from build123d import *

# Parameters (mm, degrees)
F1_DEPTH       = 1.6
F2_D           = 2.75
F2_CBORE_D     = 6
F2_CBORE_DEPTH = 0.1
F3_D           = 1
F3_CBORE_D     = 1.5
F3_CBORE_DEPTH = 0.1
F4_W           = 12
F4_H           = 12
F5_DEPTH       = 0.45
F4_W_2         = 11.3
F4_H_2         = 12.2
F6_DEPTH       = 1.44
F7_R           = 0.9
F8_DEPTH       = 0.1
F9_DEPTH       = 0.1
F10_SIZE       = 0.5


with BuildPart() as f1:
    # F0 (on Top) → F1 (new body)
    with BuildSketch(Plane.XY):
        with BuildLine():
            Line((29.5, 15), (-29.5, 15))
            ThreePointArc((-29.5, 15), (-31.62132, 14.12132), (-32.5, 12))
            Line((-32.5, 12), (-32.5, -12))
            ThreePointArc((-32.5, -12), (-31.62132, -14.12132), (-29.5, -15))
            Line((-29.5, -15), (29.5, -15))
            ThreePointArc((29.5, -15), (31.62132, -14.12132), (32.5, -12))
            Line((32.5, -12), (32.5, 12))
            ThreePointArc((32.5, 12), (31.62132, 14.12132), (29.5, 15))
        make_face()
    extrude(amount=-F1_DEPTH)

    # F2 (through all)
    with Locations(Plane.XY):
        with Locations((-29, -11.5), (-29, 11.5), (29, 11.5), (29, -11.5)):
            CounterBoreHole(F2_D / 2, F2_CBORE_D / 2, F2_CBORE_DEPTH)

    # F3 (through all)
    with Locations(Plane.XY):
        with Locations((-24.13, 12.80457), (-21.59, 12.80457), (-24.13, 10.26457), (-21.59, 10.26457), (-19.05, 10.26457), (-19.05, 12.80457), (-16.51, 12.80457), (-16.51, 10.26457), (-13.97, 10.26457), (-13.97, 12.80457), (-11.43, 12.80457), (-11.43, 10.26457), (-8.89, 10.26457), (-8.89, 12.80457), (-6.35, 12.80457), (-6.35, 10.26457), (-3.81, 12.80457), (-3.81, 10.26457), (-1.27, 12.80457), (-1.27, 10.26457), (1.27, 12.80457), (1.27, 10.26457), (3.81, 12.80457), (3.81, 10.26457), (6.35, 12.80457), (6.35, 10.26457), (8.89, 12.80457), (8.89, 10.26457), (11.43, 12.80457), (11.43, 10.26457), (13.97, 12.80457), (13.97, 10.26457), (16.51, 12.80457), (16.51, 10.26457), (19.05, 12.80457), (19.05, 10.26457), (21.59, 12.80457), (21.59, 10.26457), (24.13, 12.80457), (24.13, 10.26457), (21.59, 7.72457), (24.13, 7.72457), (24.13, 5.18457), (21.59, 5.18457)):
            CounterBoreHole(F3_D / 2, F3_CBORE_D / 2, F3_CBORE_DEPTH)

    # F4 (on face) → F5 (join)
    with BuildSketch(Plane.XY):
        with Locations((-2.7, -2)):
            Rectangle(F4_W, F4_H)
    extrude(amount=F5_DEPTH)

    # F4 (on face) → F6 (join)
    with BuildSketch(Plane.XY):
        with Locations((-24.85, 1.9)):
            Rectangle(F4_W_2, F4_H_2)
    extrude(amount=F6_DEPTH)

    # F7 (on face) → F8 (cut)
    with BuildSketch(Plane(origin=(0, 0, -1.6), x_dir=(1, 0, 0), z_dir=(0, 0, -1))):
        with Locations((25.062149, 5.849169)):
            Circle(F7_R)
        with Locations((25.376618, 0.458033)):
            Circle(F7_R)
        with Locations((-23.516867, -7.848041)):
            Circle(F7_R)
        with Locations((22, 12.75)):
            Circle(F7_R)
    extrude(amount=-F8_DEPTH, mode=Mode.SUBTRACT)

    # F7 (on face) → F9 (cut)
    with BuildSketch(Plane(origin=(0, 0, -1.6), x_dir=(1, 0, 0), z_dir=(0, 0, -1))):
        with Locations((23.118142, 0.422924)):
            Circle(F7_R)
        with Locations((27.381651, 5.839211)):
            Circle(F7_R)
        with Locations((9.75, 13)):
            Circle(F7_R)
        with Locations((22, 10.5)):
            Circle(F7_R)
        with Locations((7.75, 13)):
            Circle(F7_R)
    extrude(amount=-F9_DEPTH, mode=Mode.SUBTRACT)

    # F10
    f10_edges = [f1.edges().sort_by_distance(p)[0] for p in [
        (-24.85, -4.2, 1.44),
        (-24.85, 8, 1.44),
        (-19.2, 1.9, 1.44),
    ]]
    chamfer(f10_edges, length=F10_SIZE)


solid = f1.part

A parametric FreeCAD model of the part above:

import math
import FreeCAD as App
import Part
import Sketcher


def edges_at(feature, points):
    """Names of the edges that pass closest to the given points."""
    edges = feature.Shape.Edges
    near = lambda p: min(range(len(edges)), key=lambda i: edges[i].distToShape(Part.Vertex(*p))[0])
    return sorted({f"Edge{near(p) + 1}" for p in points})

doc = App.newDocument("Part")
body = doc.addObject("PartDesign::Body", "Body")

# Sketch on XY plane
sketch1 = body.newObject("Sketcher::SketchObject", "Sketch")
sketch1.AttachmentSupport = (doc.getObject("XY_Plane"), [""])
sketch1.MapMode = "FlatFace"
sketch1.addGeometry([
    Part.LineSegment(App.Vector(29.5, 15, 0), App.Vector(-29.5, 15, 0)),  # 0
    Part.ArcOfCircle(Part.Circle(App.Vector(-29.5, 12, 0), App.Vector(0, 0, 1), 3), math.radians(90), math.radians(180)),  # 1
    Part.LineSegment(App.Vector(-32.5, 12, 0), App.Vector(-32.5, -12, 0)),  # 2
    Part.ArcOfCircle(Part.Circle(App.Vector(-29.5, -12, 0), App.Vector(0, 0, 1), 3), math.radians(-180), math.radians(-90)),  # 3
    Part.LineSegment(App.Vector(-29.5, -15, 0), App.Vector(29.5, -15, 0)),  # 4
    Part.ArcOfCircle(Part.Circle(App.Vector(29.5, -12, 0), App.Vector(0, 0, 1), 3), math.radians(-90), math.radians(0)),  # 5
    Part.LineSegment(App.Vector(32.5, -12, 0), App.Vector(32.5, 12, 0)),  # 6
    Part.ArcOfCircle(Part.Circle(App.Vector(29.5, 12, 0), App.Vector(0, 0, 1), 3), math.radians(0), math.radians(90)),  # 7
], False)
sketch1.addConstraint([
    Sketcher.Constraint("Tangent", 0, 2, 1, 1),
    Sketcher.Constraint("Tangent", 1, 2, 2, 1),
    Sketcher.Constraint("Tangent", 2, 2, 3, 1),
    Sketcher.Constraint("Tangent", 3, 2, 4, 1),
    Sketcher.Constraint("Tangent", 4, 2, 5, 1),
    Sketcher.Constraint("Tangent", 5, 2, 6, 1),
    Sketcher.Constraint("Tangent", 6, 2, 7, 1),
    Sketcher.Constraint("Tangent", 7, 2, 0, 1),
    Sketcher.Constraint("Horizontal", 0),
    Sketcher.Constraint("Vertical", 2),
    Sketcher.Constraint("Horizontal", 4),
    Sketcher.Constraint("Vertical", 6),
    Sketcher.Constraint("Equal", 1, 3),
    Sketcher.Constraint("Equal", 3, 5),
    Sketcher.Constraint("Equal", 5, 7),
    Sketcher.Constraint("Symmetric", 1, 3, 5, 3, -1, 1),
    Sketcher.Constraint("Radius", 1, 3.000001),
    Sketcher.Constraint("DistanceX", 0, 2, 0, 1, 59.0),
    Sketcher.Constraint("DistanceY", 2, 2, 2, 1, 24.0),
])
pad1 = body.newObject("PartDesign::Pad", "Pad")
pad1.Profile = sketch1
pad1.Length = 1.6
pad1.Reversed = True

# Sketch on XY plane
sketch2 = body.newObject("Sketcher::SketchObject", "Sketch001")
sketch2.AttachmentSupport = (doc.getObject("XY_Plane"), [""])
sketch2.MapMode = "FlatFace"
sketch2.addGeometry([
    Part.Circle(App.Vector(-29, -11.5, 0), App.Vector(0, 0, 1), 1.4),
    Part.Circle(App.Vector(-29, 11.5, 0), App.Vector(0, 0, 1), 1.4),
    Part.Circle(App.Vector(29, 11.5, 0), App.Vector(0, 0, 1), 1.4),
    Part.Circle(App.Vector(29, -11.5, 0), App.Vector(0, 0, 1), 1.4),
], False)
sketch2.addConstraint([
    Sketcher.Constraint("Equal", 0, 1),
    Sketcher.Constraint("Equal", 1, 2),
    Sketcher.Constraint("Equal", 2, 3),
    Sketcher.Constraint("Symmetric", 0, 3, 2, 3, -1, 1),
    Sketcher.Constraint("Symmetric", 1, 3, 3, 3, -1, 1),
    Sketcher.Constraint("Symmetric", 1, 3, 2, 3, -2),
    Sketcher.Constraint("Diameter", 0, 2.75),
    Sketcher.Constraint("DistanceX", 0, 3, -1, 1, 29.0),
    Sketcher.Constraint("DistanceY", 0, 3, 1, 3, 23.0),
])
doc.recompute()
hole = body.newObject("PartDesign::Hole", "Hole")
hole.Profile = sketch2
hole.ThreadType = "None"
hole.Diameter = 2.75
hole.DepthType = "ThroughAll"
hole.HoleCutType = "Counterbore"
hole.HoleCutDiameter = 6
hole.HoleCutDepth = 0.1

# Sketch on XY plane
sketch3 = body.newObject("Sketcher::SketchObject", "Sketch002")
sketch3.AttachmentSupport = (doc.getObject("XY_Plane"), [""])
sketch3.MapMode = "FlatFace"
sketch3.addGeometry([
    Part.Circle(App.Vector(-24.1, 12.8, 0), App.Vector(0, 0, 1), 0.5),  # 0
    Part.Circle(App.Vector(-21.6, 12.8, 0), App.Vector(0, 0, 1), 0.5),  # 1
    Part.Circle(App.Vector(-24.1, 10.3, 0), App.Vector(0, 0, 1), 0.5),  # 2
    Part.Circle(App.Vector(-21.6, 10.3, 0), App.Vector(0, 0, 1), 0.5),  # 3
    Part.Circle(App.Vector(-19.1, 10.3, 0), App.Vector(0, 0, 1), 0.5),  # 4
    Part.Circle(App.Vector(-19.1, 12.8, 0), App.Vector(0, 0, 1), 0.5),  # 5
    Part.Circle(App.Vector(-16.5, 12.8, 0), App.Vector(0, 0, 1), 0.5),  # 6
    Part.Circle(App.Vector(-16.5, 10.3, 0), App.Vector(0, 0, 1), 0.5),  # 7
    Part.Circle(App.Vector(-14, 10.3, 0), App.Vector(0, 0, 1), 0.5),  # 8
    Part.Circle(App.Vector(-14, 12.8, 0), App.Vector(0, 0, 1), 0.5),  # 9
    Part.Circle(App.Vector(-11.4, 12.8, 0), App.Vector(0, 0, 1), 0.5),  # 10
    Part.Circle(App.Vector(-11.4, 10.3, 0), App.Vector(0, 0, 1), 0.5),  # 11
    Part.Circle(App.Vector(-8.9, 10.3, 0), App.Vector(0, 0, 1), 0.5),  # 12
    Part.Circle(App.Vector(-8.9, 12.8, 0), App.Vector(0, 0, 1), 0.5),  # 13
    Part.Circle(App.Vector(-6.3, 12.8, 0), App.Vector(0, 0, 1), 0.5),  # 14
    Part.Circle(App.Vector(-6.3, 10.3, 0), App.Vector(0, 0, 1), 0.5),  # 15
    Part.Circle(App.Vector(-3.8, 12.8, 0), App.Vector(0, 0, 1), 0.5),  # 16
    Part.Circle(App.Vector(-3.8, 10.3, 0), App.Vector(0, 0, 1), 0.5),  # 17
    Part.Circle(App.Vector(-1.3, 12.8, 0), App.Vector(0, 0, 1), 0.5),  # 18
    Part.Circle(App.Vector(-1.3, 10.3, 0), App.Vector(0, 0, 1), 0.5),  # 19
    Part.Circle(App.Vector(1.3, 12.8, 0), App.Vector(0, 0, 1), 0.5),  # 20
    Part.Circle(App.Vector(1.3, 10.3, 0), App.Vector(0, 0, 1), 0.5),  # 21
    Part.Circle(App.Vector(3.8, 12.8, 0), App.Vector(0, 0, 1), 0.5),  # 22
    Part.Circle(App.Vector(3.8, 10.3, 0), App.Vector(0, 0, 1), 0.5),  # 23
    Part.Circle(App.Vector(6.3, 12.8, 0), App.Vector(0, 0, 1), 0.5),  # 24
    Part.Circle(App.Vector(6.3, 10.3, 0), App.Vector(0, 0, 1), 0.5),  # 25
    Part.Circle(App.Vector(8.9, 12.8, 0), App.Vector(0, 0, 1), 0.5),  # 26
    Part.Circle(App.Vector(8.9, 10.3, 0), App.Vector(0, 0, 1), 0.5),  # 27
    Part.Circle(App.Vector(11.4, 12.8, 0), App.Vector(0, 0, 1), 0.5),  # 28
    Part.Circle(App.Vector(11.4, 10.3, 0), App.Vector(0, 0, 1), 0.5),  # 29
    Part.Circle(App.Vector(14, 12.8, 0), App.Vector(0, 0, 1), 0.5),  # 30
    Part.Circle(App.Vector(14, 10.3, 0), App.Vector(0, 0, 1), 0.5),  # 31
    Part.Circle(App.Vector(16.5, 12.8, 0), App.Vector(0, 0, 1), 0.5),  # 32
    Part.Circle(App.Vector(16.5, 10.3, 0), App.Vector(0, 0, 1), 0.5),  # 33
    Part.Circle(App.Vector(19.1, 12.8, 0), App.Vector(0, 0, 1), 0.5),  # 34
    Part.Circle(App.Vector(19.1, 10.3, 0), App.Vector(0, 0, 1), 0.5),  # 35
    Part.Circle(App.Vector(21.6, 12.8, 0), App.Vector(0, 0, 1), 0.5),  # 36
    Part.Circle(App.Vector(21.6, 10.3, 0), App.Vector(0, 0, 1), 0.5),  # 37
    Part.Circle(App.Vector(24.1, 12.8, 0), App.Vector(0, 0, 1), 0.5),  # 38
    Part.Circle(App.Vector(24.1, 10.3, 0), App.Vector(0, 0, 1), 0.5),  # 39
    Part.Circle(App.Vector(21.6, 7.7, 0), App.Vector(0, 0, 1), 0.5),  # 40
    Part.Circle(App.Vector(24.1, 7.7, 0), App.Vector(0, 0, 1), 0.5),  # 41
    Part.Circle(App.Vector(24.1, 5.2, 0), App.Vector(0, 0, 1), 0.5),  # 42
    Part.Circle(App.Vector(21.6, 5.2, 0), App.Vector(0, 0, 1), 0.5),  # 43
], False)
sketch3.addConstraint([
    Sketcher.Constraint("Equal", 0, 1),
    Sketcher.Constraint("Equal", 1, 2),
    Sketcher.Constraint("Equal", 2, 3),
    Sketcher.Constraint("Equal", 3, 4),
    Sketcher.Constraint("Equal", 4, 5),
    Sketcher.Constraint("Equal", 5, 6),
    Sketcher.Constraint("Equal", 6, 7),
    Sketcher.Constraint("Equal", 7, 8),
    Sketcher.Constraint("Equal", 8, 9),
    Sketcher.Constraint("Equal", 9, 10),
    Sketcher.Constraint("Equal", 10, 11),
    Sketcher.Constraint("Equal", 11, 12),
    Sketcher.Constraint("Equal", 12, 13),
    Sketcher.Constraint("Equal", 13, 14),
    Sketcher.Constraint("Equal", 14, 15),
    Sketcher.Constraint("Equal", 15, 16),
    Sketcher.Constraint("Equal", 16, 17),
    Sketcher.Constraint("Equal", 17, 18),
    Sketcher.Constraint("Equal", 18, 19),
    Sketcher.Constraint("Equal", 19, 20),
    Sketcher.Constraint("Equal", 20, 21),
    Sketcher.Constraint("Equal", 21, 22),
    Sketcher.Constraint("Equal", 22, 23),
    Sketcher.Constraint("Equal", 23, 24),
    Sketcher.Constraint("Equal", 24, 25),
    Sketcher.Constraint("Equal", 25, 26),
    Sketcher.Constraint("Equal", 26, 27),
    Sketcher.Constraint("Equal", 27, 28),
    Sketcher.Constraint("Equal", 28, 29),
    Sketcher.Constraint("Equal", 29, 30),
    Sketcher.Constraint("Equal", 30, 31),
    Sketcher.Constraint("Equal", 31, 32),
    Sketcher.Constraint("Equal", 32, 33),
    Sketcher.Constraint("Equal", 33, 34),
    Sketcher.Constraint("Equal", 34, 35),
    Sketcher.Constraint("Equal", 35, 36),
    Sketcher.Constraint("Equal", 36, 37),
    Sketcher.Constraint("Equal", 37, 38),
    Sketcher.Constraint("Equal", 38, 39),
    Sketcher.Constraint("Equal", 39, 40),
    Sketcher.Constraint("Equal", 40, 41),
    Sketcher.Constraint("Equal", 41, 42),
    Sketcher.Constraint("Equal", 42, 43),
    Sketcher.Constraint("Symmetric", 18, 3, 20, 3, -2),
    Sketcher.Constraint("Symmetric", 19, 3, 21, 3, -2),
    Sketcher.Constraint("Symmetric", 16, 3, 22, 3, -2),
    Sketcher.Constraint("Symmetric", 17, 3, 23, 3, -2),
    Sketcher.Constraint("Symmetric", 14, 3, 24, 3, -2),
    Sketcher.Constraint("Symmetric", 15, 3, 25, 3, -2),
    Sketcher.Constraint("Symmetric", 13, 3, 26, 3, -2),
    Sketcher.Constraint("Symmetric", 12, 3, 27, 3, -2),
    Sketcher.Constraint("Symmetric", 10, 3, 28, 3, -2),
    Sketcher.Constraint("Symmetric", 11, 3, 29, 3, -2),
    Sketcher.Constraint("Symmetric", 9, 3, 30, 3, -2),
    Sketcher.Constraint("Symmetric", 8, 3, 31, 3, -2),
    Sketcher.Constraint("Symmetric", 6, 3, 32, 3, -2),
    Sketcher.Constraint("Symmetric", 7, 3, 33, 3, -2),
    Sketcher.Constraint("Symmetric", 5, 3, 34, 3, -2),
    Sketcher.Constraint("Symmetric", 4, 3, 35, 3, -2),
    Sketcher.Constraint("Symmetric", 1, 3, 36, 3, -2),
    Sketcher.Constraint("Symmetric", 3, 3, 37, 3, -2),
    Sketcher.Constraint("Symmetric", 0, 3, 38, 3, -2),
    Sketcher.Constraint("Symmetric", 2, 3, 39, 3, -2),
    Sketcher.Constraint("Horizontal", 0, 3, 1, 3),
    Sketcher.Constraint("Horizontal", 2, 3, 3, 3),
    Sketcher.Constraint("Horizontal", 3, 3, 4, 3),
    Sketcher.Constraint("Horizontal", 1, 3, 5, 3),
    Sketcher.Constraint("Horizontal", 5, 3, 6, 3),
    Sketcher.Constraint("Horizontal", 4, 3, 7, 3),
    Sketcher.Constraint("Horizontal", 7, 3, 8, 3),
    Sketcher.Constraint("Horizontal", 6, 3, 9, 3),
    Sketcher.Constraint("Horizontal", 9, 3, 10, 3),
    Sketcher.Constraint("Horizontal", 8, 3, 11, 3),
    Sketcher.Constraint("Horizontal", 11, 3, 12, 3),
    Sketcher.Constraint("Horizontal", 10, 3, 13, 3),
    Sketcher.Constraint("Horizontal", 13, 3, 14, 3),
    Sketcher.Constraint("Horizontal", 12, 3, 15, 3),
    Sketcher.Constraint("Horizontal", 14, 3, 16, 3),
    Sketcher.Constraint("Horizontal", 15, 3, 17, 3),
    Sketcher.Constraint("Horizontal", 16, 3, 18, 3),
    Sketcher.Constraint("Horizontal", 17, 3, 19, 3),
    Sketcher.Constraint("Horizontal", 40, 3, 41, 3),
    Sketcher.Constraint("Horizontal", 42, 3, 43, 3),
    Sketcher.Constraint("Vertical", 0, 3, 2, 3),
    Sketcher.Constraint("Vertical", 1, 3, 3, 3),
    Sketcher.Constraint("Vertical", 4, 3, 5, 3),
    Sketcher.Constraint("Vertical", 6, 3, 7, 3),
    Sketcher.Constraint("Vertical", 8, 3, 9, 3),
    Sketcher.Constraint("Vertical", 10, 3, 11, 3),
    Sketcher.Constraint("Vertical", 12, 3, 13, 3),
    Sketcher.Constraint("Vertical", 14, 3, 15, 3),
    Sketcher.Constraint("Vertical", 16, 3, 17, 3),
    Sketcher.Constraint("Vertical", 18, 3, 19, 3),
    Sketcher.Constraint("Vertical", 37, 3, 40, 3),
    Sketcher.Constraint("Vertical", 39, 3, 41, 3),
    Sketcher.Constraint("Vertical", 41, 3, 42, 3),
    Sketcher.Constraint("Vertical", 40, 3, 43, 3),
    Sketcher.Constraint("Diameter", 0, 1.0),
    Sketcher.Constraint("DistanceX", 0, 3, -1, 1, 24.13),
    Sketcher.Constraint("DistanceX", 1, 3, -1, 1, 21.59),
    Sketcher.Constraint("DistanceX", 4, 3, -1, 1, 19.05),
    Sketcher.Constraint("DistanceX", 6, 3, -1, 1, 16.51),
    Sketcher.Constraint("DistanceX", 8, 3, -1, 1, 13.97),
    Sketcher.Constraint("DistanceX", 10, 3, -1, 1, 11.43),
    Sketcher.Constraint("DistanceX", 12, 3, -1, 1, 8.89),
    Sketcher.Constraint("DistanceX", 14, 3, -1, 1, 6.35),
    Sketcher.Constraint("DistanceX", 16, 3, -1, 1, 3.81),
    Sketcher.Constraint("DistanceX", 18, 3, -1, 1, 1.27),
    Sketcher.Constraint("DistanceY", 2, 3, 0, 3, 2.54),
    Sketcher.Constraint("DistanceY", 40, 3, 37, 3, 2.54),
    Sketcher.Constraint("DistanceY", 42, 3, 41, 3, 2.54),
    Sketcher.Constraint("DistanceY", -1, 1, 0, 3, 12.80457),
])
doc.recompute()
hole2 = body.newObject("PartDesign::Hole", "Hole001")
hole2.Profile = sketch3
hole2.ThreadType = "None"
hole2.Diameter = 1
hole2.DepthType = "ThroughAll"
hole2.HoleCutType = "Counterbore"
hole2.HoleCutDiameter = 1.5
hole2.HoleCutDepth = 0.1

# Sketch on XY plane
sketch4 = body.newObject("Sketcher::SketchObject", "Sketch003")
sketch4.AttachmentSupport = (doc.getObject("XY_Plane"), [""])
sketch4.MapMode = "FlatFace"
sketch4.addGeometry([
    Part.LineSegment(App.Vector(-9, 4, 0), App.Vector(-9, -8, 0)),
    Part.LineSegment(App.Vector(-9, -8, 0), App.Vector(3, -8, 0)),
    Part.LineSegment(App.Vector(3, -8, 0), App.Vector(3, 4, 0)),
    Part.LineSegment(App.Vector(3, 4, 0), App.Vector(-9, 4, 0)),
], False)
sketch4.addConstraint([
    Sketcher.Constraint("Coincident", 0, 2, 1, 1),
    Sketcher.Constraint("Coincident", 1, 2, 2, 1),
    Sketcher.Constraint("Coincident", 2, 2, 3, 1),
    Sketcher.Constraint("Coincident", 3, 2, 0, 1),
    Sketcher.Constraint("Vertical", 0),
    Sketcher.Constraint("Horizontal", 1),
    Sketcher.Constraint("Vertical", 2),
    Sketcher.Constraint("Horizontal", 3),
    Sketcher.Constraint("Equal", 3, 0),
    Sketcher.Constraint("DistanceX", 1, 1, 1, 2, 12.0),
    Sketcher.Constraint("DistanceY", 0, 2, -1, 1, 8.0),
    Sketcher.Constraint("DistanceX", 0, 2, -1, 1, 8.7),
])
pad2 = body.newObject("PartDesign::Pad", "Pad001")
pad2.Profile = sketch4
pad2.Length = 0.45

# Sketch on XY plane
sketch5 = body.newObject("Sketcher::SketchObject", "Sketch004")
sketch5.AttachmentSupport = (doc.getObject("XY_Plane"), [""])
sketch5.MapMode = "FlatFace"
sketch5.addGeometry([
    Part.LineSegment(App.Vector(-30, 8, 0), App.Vector(-30, -4, 0)),
    Part.LineSegment(App.Vector(-30, -4, 0), App.Vector(-19, -4, 0)),
    Part.LineSegment(App.Vector(-19, -4, 0), App.Vector(-19, 8, 0)),
    Part.LineSegment(App.Vector(-19, 8, 0), App.Vector(-30, 8, 0)),
], False)
sketch5.addConstraint([
    Sketcher.Constraint("Coincident", 0, 2, 1, 1),
    Sketcher.Constraint("Coincident", 1, 2, 2, 1),
    Sketcher.Constraint("Coincident", 2, 2, 3, 1),
    Sketcher.Constraint("Coincident", 3, 2, 0, 1),
    Sketcher.Constraint("Vertical", 0),
    Sketcher.Constraint("Horizontal", 1),
    Sketcher.Constraint("Vertical", 2),
    Sketcher.Constraint("Horizontal", 3),
    Sketcher.Constraint("DistanceX", 1, 1, 1, 2, 11.3),
    Sketcher.Constraint("DistanceY", 0, 2, 0, 1, 12.2),
    Sketcher.Constraint("DistanceY", -1, 1, 2, 2, 8.0),
    Sketcher.Constraint("DistanceX", 0, 2, -1, 1, 30.5),
])
pad3 = body.newObject("PartDesign::Pad", "Pad002")
pad3.Profile = sketch5
pad3.Length = 1.44

# Sketch on XY plane
sketch6 = body.newObject("Sketcher::SketchObject", "Sketch005")
sketch6.AttachmentSupport = (doc.getObject("XY_Plane"), [""])
sketch6.MapMode = "FlatFace"
sketch6.AttachmentOffset = App.Placement(App.Vector(0, 0, -1.6), App.Rotation())
sketch6.addGeometry([
    Part.Circle(App.Vector(25.1, -5.8, 0), App.Vector(0, 0, 1), 0.9),
    Part.Circle(App.Vector(25.4, -0.5, 0), App.Vector(0, 0, 1), 0.9),
    Part.Circle(App.Vector(-23.5, 7.8, 0), App.Vector(0, 0, 1), 0.9),
    Part.Circle(App.Vector(22, -12.8, 0), App.Vector(0, 0, 1), 0.9),
], False)
sketch6.addConstraint([
    Sketcher.Constraint("Equal", 0, 1),
    Sketcher.Constraint("Equal", 1, 2),
    Sketcher.Constraint("Equal", 2, 3),
    Sketcher.Constraint("Diameter", 0, 1.8),
    Sketcher.Constraint("DistanceX", -1, 1, 3, 3, 22.0),
    Sketcher.Constraint("DistanceY", 3, 3, -1, 1, 12.75),
    Sketcher.Constraint("DistanceX", -1, 1, 0, 3, 25.062149),
    Sketcher.Constraint("DistanceY", 0, 3, -1, 1, 5.849169),
    Sketcher.Constraint("DistanceX", -1, 1, 1, 3, 25.376618),
    Sketcher.Constraint("DistanceY", -1, 1, 2, 3, 7.848041),
    Sketcher.Constraint("DistanceY", 1, 3, -1, 1, 0.458033),
    Sketcher.Constraint("DistanceX", 2, 3, -1, 1, 23.516867),
])
pocket1 = body.newObject("PartDesign::Pocket", "Pocket")
pocket1.Profile = sketch6
pocket1.Length = 0.1
pocket1.Reversed = True

# Sketch on XY plane
sketch7 = body.newObject("Sketcher::SketchObject", "Sketch006")
sketch7.AttachmentSupport = (doc.getObject("XY_Plane"), [""])
sketch7.MapMode = "FlatFace"
sketch7.AttachmentOffset = App.Placement(App.Vector(0, 0, -1.6), App.Rotation())
sketch7.addGeometry([
    Part.Circle(App.Vector(23.1, -0.4, 0), App.Vector(0, 0, 1), 0.9),  # 0
    Part.Circle(App.Vector(27.4, -5.8, 0), App.Vector(0, 0, 1), 0.9),  # 1
    Part.Circle(App.Vector(9.8, -13, 0), App.Vector(0, 0, 1), 0.9),  # 2
    Part.Circle(App.Vector(22, -10.5, 0), App.Vector(0, 0, 1), 0.9),  # 3
    Part.Circle(App.Vector(7.8, -13, 0), App.Vector(0, 0, 1), 0.9),  # 4
], False)
sketch7.addConstraint([
    Sketcher.Constraint("Equal", 0, 1),
    Sketcher.Constraint("Equal", 1, 2),
    Sketcher.Constraint("Equal", 2, 3),
    Sketcher.Constraint("Equal", 3, 4),
    Sketcher.Constraint("Horizontal", 2, 3, 4, 3),
    Sketcher.Constraint("Diameter", 0, 1.8),
    Sketcher.Constraint("DistanceY", 2, 3, -1, 1, 13.0),
    Sketcher.Constraint("DistanceX", -1, 1, 3, 3, 22.0),
    Sketcher.Constraint("DistanceX", 4, 3, 2, 3, 2.0),
    Sketcher.Constraint("DistanceY", 3, 3, -1, 1, 10.5),
    Sketcher.Constraint("DistanceX", -1, 1, 2, 3, 9.75),
    Sketcher.Constraint("DistanceX", -1, 1, 0, 3, 23.118142),
    Sketcher.Constraint("DistanceX", -1, 1, 1, 3, 27.381651),
    Sketcher.Constraint("DistanceY", 1, 3, -1, 1, 5.839211),
    Sketcher.Constraint("DistanceY", 0, 3, -1, 1, 0.422924),
])
pocket2 = body.newObject("PartDesign::Pocket", "Pocket001")
pocket2.Profile = sketch7
pocket2.Length = 0.1
pocket2.Reversed = True
doc.recompute()

chamfer = body.newObject("PartDesign::Chamfer", "Chamfer")
chamfer.Base = (pocket2, edges_at(pocket2, [(-24.85, -4.2, 1.44), (-24.85, 8, 1.44), (-19.2, 1.9, 1.44)]))
chamfer.Size = 0.5

doc.recompute()
